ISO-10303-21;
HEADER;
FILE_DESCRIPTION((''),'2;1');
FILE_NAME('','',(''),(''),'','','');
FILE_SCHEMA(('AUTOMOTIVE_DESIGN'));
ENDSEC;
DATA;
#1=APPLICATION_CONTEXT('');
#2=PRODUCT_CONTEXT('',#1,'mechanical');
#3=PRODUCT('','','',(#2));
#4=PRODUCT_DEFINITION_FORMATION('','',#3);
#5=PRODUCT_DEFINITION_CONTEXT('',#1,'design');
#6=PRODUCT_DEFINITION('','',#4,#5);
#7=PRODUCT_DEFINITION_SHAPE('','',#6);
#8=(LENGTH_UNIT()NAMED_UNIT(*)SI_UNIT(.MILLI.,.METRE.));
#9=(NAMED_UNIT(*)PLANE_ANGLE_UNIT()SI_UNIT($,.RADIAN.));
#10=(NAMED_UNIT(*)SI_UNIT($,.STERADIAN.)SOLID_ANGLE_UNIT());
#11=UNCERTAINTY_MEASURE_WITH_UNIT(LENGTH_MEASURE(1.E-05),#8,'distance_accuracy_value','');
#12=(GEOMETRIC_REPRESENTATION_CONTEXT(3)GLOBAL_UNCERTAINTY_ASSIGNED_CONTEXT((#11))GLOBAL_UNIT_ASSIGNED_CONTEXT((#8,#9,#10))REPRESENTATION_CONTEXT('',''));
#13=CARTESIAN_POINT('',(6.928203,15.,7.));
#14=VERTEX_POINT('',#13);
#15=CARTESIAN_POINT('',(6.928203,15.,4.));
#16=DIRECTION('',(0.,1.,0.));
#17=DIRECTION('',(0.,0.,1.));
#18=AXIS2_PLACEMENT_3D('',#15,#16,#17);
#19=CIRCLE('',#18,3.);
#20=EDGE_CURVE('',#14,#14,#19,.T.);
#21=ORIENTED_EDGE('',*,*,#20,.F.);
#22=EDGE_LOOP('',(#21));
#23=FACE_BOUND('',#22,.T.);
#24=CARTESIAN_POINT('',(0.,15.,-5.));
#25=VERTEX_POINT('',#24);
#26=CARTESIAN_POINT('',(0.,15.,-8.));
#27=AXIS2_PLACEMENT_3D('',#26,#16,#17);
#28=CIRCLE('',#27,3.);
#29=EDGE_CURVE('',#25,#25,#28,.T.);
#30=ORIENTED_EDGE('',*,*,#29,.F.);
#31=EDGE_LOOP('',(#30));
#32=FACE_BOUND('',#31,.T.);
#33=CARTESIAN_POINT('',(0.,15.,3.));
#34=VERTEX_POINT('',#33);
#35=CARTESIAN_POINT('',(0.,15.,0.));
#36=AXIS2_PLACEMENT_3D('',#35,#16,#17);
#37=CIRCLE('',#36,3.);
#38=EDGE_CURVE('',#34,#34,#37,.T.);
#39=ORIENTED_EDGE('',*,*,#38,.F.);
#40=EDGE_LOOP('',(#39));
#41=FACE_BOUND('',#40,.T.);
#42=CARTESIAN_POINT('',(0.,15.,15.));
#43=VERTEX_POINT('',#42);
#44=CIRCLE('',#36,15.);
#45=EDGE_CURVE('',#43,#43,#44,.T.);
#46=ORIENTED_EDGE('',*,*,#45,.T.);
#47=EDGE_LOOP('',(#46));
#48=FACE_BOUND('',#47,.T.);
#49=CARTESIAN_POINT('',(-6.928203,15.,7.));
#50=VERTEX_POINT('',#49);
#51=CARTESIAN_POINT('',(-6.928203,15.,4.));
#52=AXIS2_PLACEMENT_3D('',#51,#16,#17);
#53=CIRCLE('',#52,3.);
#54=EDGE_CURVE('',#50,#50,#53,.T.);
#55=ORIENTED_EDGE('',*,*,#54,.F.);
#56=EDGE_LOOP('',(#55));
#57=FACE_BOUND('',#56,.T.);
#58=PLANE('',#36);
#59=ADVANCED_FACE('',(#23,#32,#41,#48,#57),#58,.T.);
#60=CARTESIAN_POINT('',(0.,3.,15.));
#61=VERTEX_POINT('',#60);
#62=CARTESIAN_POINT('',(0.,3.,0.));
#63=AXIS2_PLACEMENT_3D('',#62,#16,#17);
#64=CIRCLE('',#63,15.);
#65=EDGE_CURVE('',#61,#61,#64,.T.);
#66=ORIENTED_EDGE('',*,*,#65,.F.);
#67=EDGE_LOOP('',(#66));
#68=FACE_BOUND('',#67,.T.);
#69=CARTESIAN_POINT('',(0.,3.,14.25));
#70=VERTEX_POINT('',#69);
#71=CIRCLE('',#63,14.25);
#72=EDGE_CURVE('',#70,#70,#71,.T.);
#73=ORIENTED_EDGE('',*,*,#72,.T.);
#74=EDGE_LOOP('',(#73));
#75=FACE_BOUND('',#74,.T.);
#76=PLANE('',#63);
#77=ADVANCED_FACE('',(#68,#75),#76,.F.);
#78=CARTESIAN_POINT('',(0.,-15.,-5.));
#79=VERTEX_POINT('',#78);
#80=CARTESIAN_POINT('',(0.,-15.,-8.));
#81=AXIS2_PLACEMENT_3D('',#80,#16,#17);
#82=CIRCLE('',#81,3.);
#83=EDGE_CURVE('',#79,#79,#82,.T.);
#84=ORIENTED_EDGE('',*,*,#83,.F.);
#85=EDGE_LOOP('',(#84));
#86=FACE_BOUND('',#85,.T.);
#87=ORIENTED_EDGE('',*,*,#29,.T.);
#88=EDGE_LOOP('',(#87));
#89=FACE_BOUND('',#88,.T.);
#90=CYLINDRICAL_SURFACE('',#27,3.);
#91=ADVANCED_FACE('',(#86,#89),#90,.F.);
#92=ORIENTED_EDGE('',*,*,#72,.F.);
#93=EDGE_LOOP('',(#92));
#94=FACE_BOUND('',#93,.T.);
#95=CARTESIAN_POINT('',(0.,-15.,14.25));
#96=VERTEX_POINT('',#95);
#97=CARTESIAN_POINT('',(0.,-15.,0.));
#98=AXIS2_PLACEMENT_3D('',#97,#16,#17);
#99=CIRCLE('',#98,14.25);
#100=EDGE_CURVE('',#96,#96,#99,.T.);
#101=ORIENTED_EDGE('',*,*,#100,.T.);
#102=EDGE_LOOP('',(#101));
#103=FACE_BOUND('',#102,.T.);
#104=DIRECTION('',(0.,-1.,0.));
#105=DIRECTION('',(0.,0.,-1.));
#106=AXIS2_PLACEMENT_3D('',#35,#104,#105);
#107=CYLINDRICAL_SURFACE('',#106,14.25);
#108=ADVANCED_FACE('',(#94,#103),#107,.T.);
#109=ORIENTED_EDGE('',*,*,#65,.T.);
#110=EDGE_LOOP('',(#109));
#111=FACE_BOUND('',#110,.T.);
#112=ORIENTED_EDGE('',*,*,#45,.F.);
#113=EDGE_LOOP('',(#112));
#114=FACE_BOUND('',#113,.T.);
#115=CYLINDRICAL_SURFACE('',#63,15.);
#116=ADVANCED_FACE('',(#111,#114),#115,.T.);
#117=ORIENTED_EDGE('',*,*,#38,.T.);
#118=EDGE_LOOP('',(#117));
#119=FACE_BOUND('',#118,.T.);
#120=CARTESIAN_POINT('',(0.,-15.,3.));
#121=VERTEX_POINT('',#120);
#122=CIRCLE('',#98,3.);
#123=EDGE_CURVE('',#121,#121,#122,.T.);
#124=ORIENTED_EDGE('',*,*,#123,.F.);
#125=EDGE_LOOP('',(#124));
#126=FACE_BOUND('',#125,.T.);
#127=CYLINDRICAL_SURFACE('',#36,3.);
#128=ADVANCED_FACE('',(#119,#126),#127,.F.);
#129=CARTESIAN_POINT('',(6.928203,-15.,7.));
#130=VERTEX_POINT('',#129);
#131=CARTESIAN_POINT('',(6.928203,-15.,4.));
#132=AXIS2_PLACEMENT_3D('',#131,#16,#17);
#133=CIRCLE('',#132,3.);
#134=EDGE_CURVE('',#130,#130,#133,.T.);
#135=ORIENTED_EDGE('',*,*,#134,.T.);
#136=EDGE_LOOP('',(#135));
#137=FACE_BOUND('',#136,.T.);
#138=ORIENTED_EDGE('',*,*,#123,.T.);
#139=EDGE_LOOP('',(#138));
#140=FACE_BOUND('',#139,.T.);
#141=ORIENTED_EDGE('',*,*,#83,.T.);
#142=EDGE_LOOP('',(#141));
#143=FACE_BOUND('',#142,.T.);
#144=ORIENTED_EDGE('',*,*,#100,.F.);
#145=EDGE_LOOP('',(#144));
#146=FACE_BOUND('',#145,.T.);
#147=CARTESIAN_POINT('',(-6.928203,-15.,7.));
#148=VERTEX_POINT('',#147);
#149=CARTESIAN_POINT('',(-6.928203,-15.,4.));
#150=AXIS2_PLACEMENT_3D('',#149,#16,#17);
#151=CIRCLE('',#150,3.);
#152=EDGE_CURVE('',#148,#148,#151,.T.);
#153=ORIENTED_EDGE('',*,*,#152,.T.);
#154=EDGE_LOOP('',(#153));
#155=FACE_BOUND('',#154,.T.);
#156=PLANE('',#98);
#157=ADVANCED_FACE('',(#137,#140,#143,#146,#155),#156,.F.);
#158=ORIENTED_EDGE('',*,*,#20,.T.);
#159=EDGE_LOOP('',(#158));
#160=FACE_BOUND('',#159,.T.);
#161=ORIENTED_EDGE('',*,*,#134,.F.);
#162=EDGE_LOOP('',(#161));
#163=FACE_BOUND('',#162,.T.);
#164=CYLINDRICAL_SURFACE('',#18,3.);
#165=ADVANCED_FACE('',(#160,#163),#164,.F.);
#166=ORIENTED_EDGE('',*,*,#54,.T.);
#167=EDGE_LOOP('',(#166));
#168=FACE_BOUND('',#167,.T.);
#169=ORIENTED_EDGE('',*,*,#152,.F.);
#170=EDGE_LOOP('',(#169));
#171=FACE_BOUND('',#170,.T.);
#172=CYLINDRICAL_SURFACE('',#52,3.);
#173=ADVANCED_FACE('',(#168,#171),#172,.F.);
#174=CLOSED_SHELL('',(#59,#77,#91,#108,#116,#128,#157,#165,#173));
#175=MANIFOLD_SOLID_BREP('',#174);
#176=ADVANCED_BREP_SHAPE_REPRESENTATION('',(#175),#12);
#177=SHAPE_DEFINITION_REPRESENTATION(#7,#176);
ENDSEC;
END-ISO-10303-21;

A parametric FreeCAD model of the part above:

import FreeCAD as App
import Part
import Sketcher

V = App.Vector

doc = App.newDocument("Part")
params = doc.addObject("Spreadsheet::Sheet", "Params")
for row, (alias, value) in enumerate([
    ("sketch1_diameter", "28.5 mm"),
    ("pad1_length", "30 mm"),
    ("sketch2_diameter", "6 mm"),
    ("hole_diameter", "6 mm"),
    ("sketch3_diameter", "6 mm"),
    ("hole2_diameter", "6 mm"),
    ("sketch4_diameter", "30 mm"),
    ("sketch4_diameter2", "28.5 mm"),
    ("pad2_length", "12 mm"),
], start=1):
    params.set(f"A{row}", alias)
    params.set(f"B{row}", "=" + value)
    params.setAlias(f"B{row}", alias)

body = doc.addObject("PartDesign::Body", "Body")

sketch1 = doc.addObject("Sketcher::SketchObject", "Sketch")
body.addObject(sketch1)
sketch1.AttachmentSupport = (doc.XZ_Plane, [""])
sketch1.MapMode = "FlatFace"
sketch1.addGeometry(Part.Circle(V(0, 0, 0), V(0, 0, 1), 14), False)
sketch1.addConstraint(Sketcher.Constraint("Coincident", 0, 3, -1, 1))
sketch1.addConstraint(Sketcher.Constraint("Diameter", 0, 28.5))
sketch1.setExpression("Constraints[1]", "Params.sketch1_diameter")
pad1 = doc.addObject("PartDesign::Pad", "Pad")
body.addObject(pad1)
pad1.Profile = sketch1
pad1.setExpression("Length", "Params.pad1_length")
pad1.Midplane = True

sketch2 = doc.addObject("Sketcher::SketchObject", "Sketch001")
body.addObject(sketch2)
sketch2.AttachmentSupport = (doc.XZ_Plane, [""])
sketch2.MapMode = "FlatFace"
sketch2.AttachmentOffset = App.Placement(V(0, 0, -15), App.Rotation())
sketch2.addGeometry(Part.Circle(V(0, 0, 0), V(0, 0, 1), 3), False)
sketch2.addConstraint(Sketcher.Constraint("Coincident", 0, 3, -1, 1))
sketch2.addConstraint(Sketcher.Constraint("Diameter", 0, 6.0))
sketch2.setExpression("Constraints[1]", "Params.sketch2_diameter")
doc.recompute()
hole = doc.addObject("PartDesign::Hole", "Hole")
body.addObject(hole)
hole.Profile = sketch2
hole.ThreadType = "None"
hole.setExpression("Diameter", "Params.hole_diameter")
hole.DepthType = "ThroughAll"
hole.Reversed = True

sketch3 = doc.addObject("Sketcher::SketchObject", "Sketch002")
body.addObject(sketch3)
sketch3.AttachmentSupport = (doc.XZ_Plane, [""])
sketch3.MapMode = "FlatFace"
sketch3.AttachmentOffset = App.Placement(V(0, 0, -15), App.Rotation())
sketch3.addGeometry(Part.Circle(V(0, -8, 0), V(0, 0, 1), 3), False)
sketch3.addConstraint(Sketcher.Constraint("PointOnObject", 0, 3, -2))
sketch3.addConstraint(Sketcher.Constraint("Diameter", 0, 6.0))
sketch3.addConstraint(Sketcher.Constraint("DistanceY", 0, 3, -1, 1, 8.0))
sketch3.setExpression("Constraints[1]", "Params.sketch3_diameter")
doc.recompute()
hole2 = doc.addObject("PartDesign::Hole", "Hole001")
body.addObject(hole2)
hole2.Profile = sketch3
hole2.ThreadType = "None"
hole2.setExpression("Diameter", "Params.hole2_diameter")
hole2.DepthType = "ThroughAll"
hole2.Reversed = True
doc.recompute()

polarpattern = doc.addObject("PartDesign::PolarPattern", "PolarPattern")
body.addObject(polarpattern)
polarpattern.Originals = [hole2]
polarpattern.Axis = (doc.Y_Axis, [""])
polarpattern.Angle = 360
polarpattern.Occurrences = 3
body.Tip = polarpattern

sketch4 = doc.addObject("Sketcher::SketchObject", "Sketch003")
body.addObject(sketch4)
sketch4.AttachmentSupport = (doc.XZ_Plane, [""])
sketch4.MapMode = "FlatFace"
sketch4.AttachmentOffset = App.Placement(V(0, 0, -15), App.Rotation())
sketch4.addGeometry(Part.Circle(V(0, 0, 0), V(0, 0, 1), 15), False)
sketch4.addGeometry(Part.Circle(V(0, 0, 0), V(0, 0, 1), 14), False)
sketch4.addConstraint(Sketcher.Constraint("Coincident", 0, 3, -1, 1))
sketch4.addConstraint(Sketcher.Constraint("Coincident", 1, 3, -1, 1))
sketch4.addConstraint(Sketcher.Constraint("Diameter", 0, 30.0))
sketch4.addConstraint(Sketcher.Constraint("Diameter", 1, 28.5))
sketch4.setExpression("Constraints[2]", "Params.sketch4_diameter")
sketch4.setExpression("Constraints[3]", "Params.sketch4_diameter2")
pad2 = doc.addObject("PartDesign::Pad", "Pad001")
body.addObject(pad2)
pad2.Profile = sketch4
pad2.setExpression("Length", "Params.pad2_length")

doc.recompute()
